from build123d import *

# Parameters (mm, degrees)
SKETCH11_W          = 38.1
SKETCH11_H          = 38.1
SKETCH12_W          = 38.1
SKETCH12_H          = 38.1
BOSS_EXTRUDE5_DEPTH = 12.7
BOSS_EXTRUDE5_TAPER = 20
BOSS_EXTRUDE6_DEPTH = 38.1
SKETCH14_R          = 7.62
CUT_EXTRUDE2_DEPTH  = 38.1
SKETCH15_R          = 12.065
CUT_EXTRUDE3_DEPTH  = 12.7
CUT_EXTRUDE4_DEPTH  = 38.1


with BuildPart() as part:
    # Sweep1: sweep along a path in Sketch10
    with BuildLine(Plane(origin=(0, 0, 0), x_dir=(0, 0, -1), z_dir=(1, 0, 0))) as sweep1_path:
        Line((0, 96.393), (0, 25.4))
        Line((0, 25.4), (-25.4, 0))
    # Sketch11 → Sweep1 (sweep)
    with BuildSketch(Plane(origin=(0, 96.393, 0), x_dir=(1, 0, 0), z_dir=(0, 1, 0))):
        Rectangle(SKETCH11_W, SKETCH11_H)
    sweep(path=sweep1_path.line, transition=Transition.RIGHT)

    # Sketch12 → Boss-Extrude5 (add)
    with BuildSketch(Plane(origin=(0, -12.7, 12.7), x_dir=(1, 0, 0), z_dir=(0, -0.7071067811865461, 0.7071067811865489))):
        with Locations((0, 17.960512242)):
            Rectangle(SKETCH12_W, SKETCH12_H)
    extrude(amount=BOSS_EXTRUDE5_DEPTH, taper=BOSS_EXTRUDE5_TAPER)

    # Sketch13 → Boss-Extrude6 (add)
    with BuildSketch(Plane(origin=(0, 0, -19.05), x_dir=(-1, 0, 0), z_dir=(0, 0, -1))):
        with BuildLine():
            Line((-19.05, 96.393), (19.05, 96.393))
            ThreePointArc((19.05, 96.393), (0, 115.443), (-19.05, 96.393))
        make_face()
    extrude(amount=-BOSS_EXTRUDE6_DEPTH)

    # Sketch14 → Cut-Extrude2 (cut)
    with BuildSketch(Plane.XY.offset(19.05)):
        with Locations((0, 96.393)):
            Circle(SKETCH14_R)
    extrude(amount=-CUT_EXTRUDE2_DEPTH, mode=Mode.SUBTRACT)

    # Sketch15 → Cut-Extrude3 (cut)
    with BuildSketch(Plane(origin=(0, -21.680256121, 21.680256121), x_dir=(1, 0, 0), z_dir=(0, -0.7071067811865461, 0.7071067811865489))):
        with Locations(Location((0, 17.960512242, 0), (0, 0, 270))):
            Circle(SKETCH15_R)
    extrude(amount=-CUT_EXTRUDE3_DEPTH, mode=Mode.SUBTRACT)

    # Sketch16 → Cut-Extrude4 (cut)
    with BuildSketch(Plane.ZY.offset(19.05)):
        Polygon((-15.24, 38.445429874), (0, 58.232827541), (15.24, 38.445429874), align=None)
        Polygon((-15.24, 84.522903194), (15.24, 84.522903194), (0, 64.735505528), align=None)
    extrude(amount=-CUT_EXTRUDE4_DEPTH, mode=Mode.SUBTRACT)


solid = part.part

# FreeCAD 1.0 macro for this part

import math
import FreeCAD as App
import Part
import Sketcher
from FreeCAD import Vector
Q = App.Units.Quantity

doc = App.newDocument("Part")
body = doc.addObject("PartDesign::Body", "Body")

# Sketch on XZ plane
sketch1 = body.newObject("Sketcher::SketchObject", "Sketch")
sketch1.AttachmentSupport = (doc.getObject("XZ_Plane"), [""])
sketch1.MapMode = "FlatFace"
sketch1.AttachmentOffset = App.Placement(Vector(0, 0, -3.795 * 25.4), App.Rotation())
sketch1.addGeometry(Part.LineSegment(Vector(-19, -19, 0), Vector(-19, 19, 0)), False)
sketch1.addGeometry(Part.LineSegment(Vector(-19, 19, 0), Vector(19, 19, 0)), False)
sketch1.addGeometry(Part.LineSegment(Vector(19, 19, 0), Vector(19, -19, 0)), False)
sketch1.addGeometry(Part.LineSegment(Vector(19, -19, 0), Vector(-19, -19, 0)), False)
sketch1.addConstraint(Sketcher.Constraint("Coincident", 0, 2, 1, 1))
sketch1.addConstraint(Sketcher.Constraint("Coincident", 1, 2, 2, 1))
sketch1.addConstraint(Sketcher.Constraint("Coincident", 2, 2, 3, 1))
sketch1.addConstraint(Sketcher.Constraint("Coincident", 3, 2, 0, 1))
sketch1.addConstraint(Sketcher.Constraint("Vertical", 0))
sketch1.addConstraint(Sketcher.Constraint("Horizontal", 1))
sketch1.addConstraint(Sketcher.Constraint("Vertical", 2))
sketch1.addConstraint(Sketcher.Constraint("Horizontal", 3))
sketch1.addConstraint(Sketcher.Constraint("Symmetric", 0, 2, 2, 2, -1, 1))
sketch1.addConstraint(Sketcher.Constraint("Equal", 3, 0))
sketch1.addConstraint(Sketcher.Constraint("DistanceX", 1, 1, 1, 2, Q("1.5 in")))

# Sketch on YZ plane
sketch2 = body.newObject("Sketcher::SketchObject", "Sketch001")
sketch2.AttachmentSupport = (doc.getObject("YZ_Plane"), [""])
sketch2.MapMode = "FlatFace"
sketch2.addGeometry(Part.LineSegment(Vector(96, 0, 0), Vector(25, 0, 0)), False)
sketch2.addGeometry(Part.LineSegment(Vector(25, 0, 0), Vector(0, 25, 0)), False)
sketch2.addConstraint(Sketcher.Constraint("Coincident", 0, 2, 1, 1))
sketch2.addConstraint(Sketcher.Constraint("Horizontal", 0))
sketch2.addConstraint(Sketcher.Constraint("PointOnObject", 0, 1, -1))
sketch2.addConstraint(Sketcher.Constraint("PointOnObject", 1, 2, -2))
sketch2.addConstraint(Sketcher.Constraint("DistanceX", -1, 1, 0, 2, Q("1 in")))
sketch2.addConstraint(Sketcher.Constraint("DistanceY", -1, 1, 1, 2, Q("1 in")))
sketch2.addConstraint(Sketcher.Constraint("DistanceX", 0, 2, 0, 1, Q("2.795 in")))
doc.recompute()

additivepipe = body.newObject("PartDesign::AdditivePipe", "AdditivePipe")
additivepipe.Profile = sketch1
additivepipe.Spine = (sketch2, ["Edge1", "Edge2"])
additivepipe.Transition = "Right corner"

# Sketch on an angled plane
sketch3 = body.newObject("Sketcher::SketchObject", "Sketch002")
sketch3.Placement = App.Placement(Vector(0, -12.7, 12.7), App.Rotation(Vector(1, 0, 0), Vector(0, 0.707106781, 0.707106781), Vector(0, -0.707106781, 0.707106781), "ZXY"))
sketch3.addGeometry(Part.LineSegment(Vector(-19, 37, 0), Vector(-19, -1, 0)), False)
sketch3.addGeometry(Part.LineSegment(Vector(-19, -1, 0), Vector(19, -1, 0)), False)
sketch3.addGeometry(Part.LineSegment(Vector(19, -1, 0), Vector(19, 37, 0)), False)
sketch3.addGeometry(Part.LineSegment(Vector(19, 37, 0), Vector(-19, 37, 0)), False)
sketch3.addConstraint(Sketcher.Constraint("Coincident", 0, 2, 1, 1))
sketch3.addConstraint(Sketcher.Constraint("Coincident", 1, 2, 2, 1))
sketch3.addConstraint(Sketcher.Constraint("Coincident", 2, 2, 3, 1))
sketch3.addConstraint(Sketcher.Constraint("Coincident", 3, 2, 0, 1))
sketch3.addConstraint(Sketcher.Constraint("Vertical", 0))
sketch3.addConstraint(Sketcher.Constraint("Horizontal", 1))
sketch3.addConstraint(Sketcher.Constraint("Vertical", 2))
sketch3.addConstraint(Sketcher.Constraint("Horizontal", 3))
sketch3.addConstraint(Sketcher.Constraint("Equal", 3, 0))
sketch3.addConstraint(Sketcher.Constraint("DistanceX", 1, 1, 1, 2, Q("1.5 in")))
sketch3.addConstraint(Sketcher.Constraint("DistanceX", 0, 2, -1, 1, Q("0.75 in")))
sketch3.addConstraint(Sketcher.Constraint("DistanceY", 0, 2, -1, 1, 1.089488))
pad1 = body.newObject("PartDesign::Pad", "Pad")
pad1.Profile = sketch3
pad1.Length = Q("0.5 in")
pad1.TaperAngle = -20

# Sketch on XY plane
sketch4 = body.newObject("Sketcher::SketchObject", "Sketch003")
sketch4.AttachmentSupport = (doc.getObject("XY_Plane"), [""])
sketch4.MapMode = "FlatFace"
sketch4.AttachmentOffset = App.Placement(Vector(0, 0, -0.75 * 25.4), App.Rotation())
sketch4.addGeometry(Part.LineSegment(Vector(19, 96, 0), Vector(-19, 96, 0)), False)
sketch4.addGeometry(Part.ArcOfCircle(Part.Circle(Vector(0, 96, 0), Vector(0, 0, 1), 19), math.radians(0), math.radians(180)), False)
sketch4.addConstraint(Sketcher.Constraint("Coincident", 0, 1, 1, 1))
sketch4.addConstraint(Sketcher.Constraint("Coincident", 1, 2, 0, 2))
sketch4.addConstraint(Sketcher.Constraint("Horizontal", 0))
sketch4.addConstraint(Sketcher.Constraint("PointOnObject", 1, 3, -2))
sketch4.addConstraint(Sketcher.Constraint("Horizontal", 1, 3, 0, 1))
sketch4.addConstraint(Sketcher.Constraint("Radius", 1, Q("0.75 in")))
sketch4.addConstraint(Sketcher.Constraint("DistanceY", -1, 1, 1, 3, Q("3.795 in")))
pad2 = body.newObject("PartDesign::Pad", "Pad001")
pad2.Profile = sketch4
pad2.Length = Q("1.5 in")

# Sketch on XY plane
sketch5 = body.newObject("Sketcher::SketchObject", "Sketch004")
sketch5.AttachmentSupport = (doc.getObject("XY_Plane"), [""])
sketch5.MapMode = "FlatFace"
sketch5.AttachmentOffset = App.Placement(Vector(0, 0, 0.75 * 25.4), App.Rotation())
sketch5.addGeometry(Part.Circle(Vector(0, 96, 0), Vector(0, 0, 1), 8), False)
sketch5.addConstraint(Sketcher.Constraint("PointOnObject", 0, 3, -2))
sketch5.addConstraint(Sketcher.Constraint("Diameter", 0, Q("0.6 in")))
sketch5.addConstraint(Sketcher.Constraint("DistanceY", -1, 1, 0, 3, Q("3.795 in")))
pocket1 = body.newObject("PartDesign::Pocket", "Pocket")
pocket1.Profile = sketch5
pocket1.Length = Q("1.5 in")

# Sketch on an angled plane
sketch6 = body.newObject("Sketcher::SketchObject", "Sketch005")
sketch6.Placement = App.Placement(Vector(0, -21.680256, 21.680256), App.Rotation(Vector(1, 0, 0), Vector(0, 0.707106781, 0.707106781), Vector(0, -0.707106781, 0.707106781), "ZXY"))
sketch6.addGeometry(Part.Circle(Vector(0, 18, 0), Vector(0, 0, 1), 12), False)
sketch6.addConstraint(Sketcher.Constraint("PointOnObject", 0, 3, -2))
sketch6.addConstraint(Sketcher.Constraint("Diameter", 0, Q("0.95 in")))
sketch6.addConstraint(Sketcher.Constraint("DistanceY", -1, 1, 0, 3, 17.960512))
pocket2 = body.newObject("PartDesign::Pocket", "Pocket001")
pocket2.Profile = sketch6
pocket2.Length = Q("0.5 in")

# Sketch on YZ plane
sketch7 = body.newObject("Sketcher::SketchObject", "Sketch006")
sketch7.AttachmentSupport = (doc.getObject("YZ_Plane"), [""])
sketch7.MapMode = "FlatFace"
sketch7.AttachmentOffset = App.Placement(Vector(0, 0, -0.75 * 25.4), App.Rotation())
sketch7.addGeometry(Part.LineSegment(Vector(58, 0, 0), Vector(38, -15, 0)), False)
sketch7.addGeometry(Part.LineSegment(Vector(38, -15, 0), Vector(38, 15, 0)), False)
sketch7.addGeometry(Part.LineSegment(Vector(38, 15, 0), Vector(58, 0, 0)), False)
sketch7.addGeometry(Part.LineSegment(Vector(85, 15, 0), Vector(85, -15, 0)), False)
sketch7.addGeometry(Part.LineSegment(Vector(85, -15, 0), Vector(65, 0, 0)), False)
sketch7.addGeometry(Part.LineSegment(Vector(65, 0, 0), Vector(85, 15, 0)), False)
sketch7.addConstraint(Sketcher.Constraint("Coincident", 0, 2, 1, 1))
sketch7.addConstraint(Sketcher.Constraint("Coincident", 1, 2, 2, 1))
sketch7.addConstraint(Sketcher.Constraint("Coincident", 2, 2, 0, 1))
sketch7.addConstraint(Sketcher.Constraint("Coincident", 3, 2, 4, 1))
sketch7.addConstraint(Sketcher.Constraint("Coincident", 4, 2, 5, 1))
sketch7.addConstraint(Sketcher.Constraint("Coincident", 5, 2, 3, 1))
sketch7.addConstraint(Sketcher.Constraint("Vertical", 1))
sketch7.addConstraint(Sketcher.Constraint("Vertical", 3))
sketch7.addConstraint(Sketcher.Constraint("PointOnObject", 2, 2, -1))
sketch7.addConstraint(Sketcher.Constraint("PointOnObject", 4, 2, -1))
sketch7.addConstraint(Sketcher.Constraint("Parallel", 2, 4))
sketch7.addConstraint(Sketcher.Constraint("Parallel", 0, 5))
sketch7.addConstraint(Sketcher.Constraint("Horizontal", 0, 2, 3, 2))
sketch7.addConstraint(Sketcher.Constraint("Horizontal", 1, 2, 5, 2))
sketch7.addConstraint(Sketcher.Constraint("DistanceY", 1, 1, 1, 2, Q("1.2 in")))
sketch7.addConstraint(Sketcher.Constraint("DistanceX", -1, 1, 0, 2, 38.44543))
sketch7.addConstraint(Sketcher.Constraint("Distance", 0, 24.975963))
sketch7.addConstraint(Sketcher.Constraint("DistanceX", -1, 1, 3, 2, 84.522903))
pocket3 = body.newObject("PartDesign::Pocket", "Pocket002")
pocket3.Profile = sketch7
pocket3.Length = Q("1.5 in")
pocket3.Reversed = True

doc.recompute()
